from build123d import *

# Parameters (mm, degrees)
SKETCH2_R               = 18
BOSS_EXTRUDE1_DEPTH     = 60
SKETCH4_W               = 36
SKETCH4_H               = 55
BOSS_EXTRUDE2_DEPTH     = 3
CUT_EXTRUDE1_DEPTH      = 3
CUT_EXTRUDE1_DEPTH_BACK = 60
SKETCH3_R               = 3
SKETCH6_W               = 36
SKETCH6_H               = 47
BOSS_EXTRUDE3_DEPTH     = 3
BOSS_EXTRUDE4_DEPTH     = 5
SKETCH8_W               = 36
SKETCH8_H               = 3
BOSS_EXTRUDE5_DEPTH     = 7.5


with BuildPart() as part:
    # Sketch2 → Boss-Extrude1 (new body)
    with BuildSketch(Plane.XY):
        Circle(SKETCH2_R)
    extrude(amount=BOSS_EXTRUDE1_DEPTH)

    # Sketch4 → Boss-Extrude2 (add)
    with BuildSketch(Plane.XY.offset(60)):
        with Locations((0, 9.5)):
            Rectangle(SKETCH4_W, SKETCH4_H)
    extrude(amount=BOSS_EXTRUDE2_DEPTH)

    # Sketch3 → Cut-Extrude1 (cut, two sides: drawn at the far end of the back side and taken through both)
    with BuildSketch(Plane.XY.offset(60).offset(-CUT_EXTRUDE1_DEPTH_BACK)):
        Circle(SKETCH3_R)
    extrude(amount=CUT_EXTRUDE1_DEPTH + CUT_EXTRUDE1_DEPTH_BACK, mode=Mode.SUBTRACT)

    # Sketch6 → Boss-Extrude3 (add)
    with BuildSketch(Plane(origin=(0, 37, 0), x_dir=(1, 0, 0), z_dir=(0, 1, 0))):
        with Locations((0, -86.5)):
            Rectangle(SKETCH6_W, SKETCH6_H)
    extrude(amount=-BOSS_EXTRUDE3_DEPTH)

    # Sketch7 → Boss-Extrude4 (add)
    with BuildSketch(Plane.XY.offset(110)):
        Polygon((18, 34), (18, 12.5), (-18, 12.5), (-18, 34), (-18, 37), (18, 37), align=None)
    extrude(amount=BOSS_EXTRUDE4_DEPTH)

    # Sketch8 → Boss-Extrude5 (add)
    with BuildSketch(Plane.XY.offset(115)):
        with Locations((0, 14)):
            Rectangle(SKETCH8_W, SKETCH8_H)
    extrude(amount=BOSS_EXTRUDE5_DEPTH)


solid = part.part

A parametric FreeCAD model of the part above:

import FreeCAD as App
import Part
import Sketcher


def add_polygon(sketch, points):
    """Adds a closed chain of lines whose ends are joined by coincident constraints."""
    first, n = sketch.GeometryCount, len(points)
    for a, b in zip(points, points[1:] + points[:1]):
        sketch.addGeometry(Part.LineSegment(App.Vector(*a, 0), App.Vector(*b, 0)), False)
    for i in range(n):
        sketch.addConstraint(Sketcher.Constraint("Coincident", first + i, 2, first + (i + 1) % n, 1))

doc = App.newDocument("Part")
params = doc.addObject("Spreadsheet::Sheet", "Params")
for row, (alias, value) in enumerate([
    ("sketch1_diameter", "36 mm"),
    ("pad1_length", "60 mm"),
    ("sketch2_width", "36 mm"),
    ("sketch2_height", "55 mm"),
    ("pad2_length", "3 mm"),
    ("sketch3_diameter", "6 mm"),
    ("sketch4_width", "36 mm"),
    ("sketch4_height", "47 mm"),
    ("pad3_length", "3 mm"),
    ("sketch5_width", "36 mm"),
    ("sketch5_height", "24.5 mm"),
    ("pad4_length", "5 mm"),
    ("sketch6_width", "36 mm"),
    ("sketch6_height", "3 mm"),
    ("pad5_length", "7.5 mm"),
], start=1):
    params.set(f"A{row}", alias)
    params.set(f"B{row}", "=" + value)
    params.setAlias(f"B{row}", alias)

body = doc.addObject("PartDesign::Body", "Body")

# Sketch on XY plane
sketch1 = body.newObject("Sketcher::SketchObject", "Sketch")
sketch1.AttachmentSupport = (doc.getObject("XY_Plane"), [""])
sketch1.MapMode = "FlatFace"
sketch1.addGeometry(Part.Circle(App.Vector(0, 0, 0), App.Vector(0, 0, 1), 18), False)
sketch1.addConstraint(Sketcher.Constraint("Coincident", 0, 3, -1, 1))
sketch1.addConstraint(Sketcher.Constraint("Diameter", 0, 36.0))
sketch1.setExpression("Constraints[1]", "Params.sketch1_diameter")
pad1 = body.newObject("PartDesign::Pad", "Pad")
pad1.Profile = sketch1
pad1.setExpression("Length", "Params.pad1_length")

# Sketch on XY plane
sketch2 = body.newObject("Sketcher::SketchObject", "Sketch001")
sketch2.AttachmentSupport = (doc.getObject("XY_Plane"), [""])
sketch2.MapMode = "FlatFace"
sketch2.AttachmentOffset = App.Placement(App.Vector(0, 0, 60), App.Rotation())
add_polygon(sketch2, [(-18, 37), (-18, -18), (18, -18), (18, 37)])  # lines 0-3
sketch2.addConstraint(Sketcher.Constraint("Vertical", 0))
sketch2.addConstraint(Sketcher.Constraint("Horizontal", 1))
sketch2.addConstraint(Sketcher.Constraint("Vertical", 2))
sketch2.addConstraint(Sketcher.Constraint("Horizontal", 3))
sketch2.addConstraint(Sketcher.Constraint("DistanceX", 1, 1, 1, 2, 36.0))
sketch2.addConstraint(Sketcher.Constraint("DistanceY", 0, 2, 0, 1, 55.0))
sketch2.addConstraint(Sketcher.Constraint("DistanceX", 0, 2, -1, 1, 18.0))
sketch2.addConstraint(Sketcher.Constraint("DistanceY", 0, 2, -1, 1, 18.0))
sketch2.setExpression("Constraints[8]", "Params.sketch2_width")
sketch2.setExpression("Constraints[9]", "Params.sketch2_height")
pad2 = body.newObject("PartDesign::Pad", "Pad001")
pad2.Profile = sketch2
pad2.setExpression("Length", "Params.pad2_length")

# Sketch on XY plane
sketch3 = body.newObject("Sketcher::SketchObject", "Sketch002")
sketch3.AttachmentSupport = (doc.getObject("XY_Plane"), [""])
sketch3.MapMode = "FlatFace"
sketch3.AttachmentOffset = App.Placement(App.Vector(0, 0, 60), App.Rotation())
sketch3.addGeometry(Part.Circle(App.Vector(0, 0, 0), App.Vector(0, 0, 1), 3), False)
sketch3.addConstraint(Sketcher.Constraint("Coincident", 0, 3, -1, 1))
sketch3.addConstraint(Sketcher.Constraint("Diameter", 0, 6.0))
sketch3.setExpression("Constraints[1]", "Params.sketch3_diameter")
pocket1 = body.newObject("PartDesign::Pocket", "Pocket")
pocket1.Profile = sketch3
pocket1.Type = "ThroughAll"
pocket1.Midplane = True

# Sketch on XZ plane
sketch4 = body.newObject("Sketcher::SketchObject", "Sketch003")
sketch4.AttachmentSupport = (doc.getObject("XZ_Plane"), [""])
sketch4.MapMode = "FlatFace"
sketch4.AttachmentOffset = App.Placement(App.Vector(0, 0, -37), App.Rotation())
add_polygon(sketch4, [(-18, 63), (-18, 110), (18, 110), (18, 63)])  # lines 0-3
sketch4.addConstraint(Sketcher.Constraint("Vertical", 0))
sketch4.addConstraint(Sketcher.Constraint("Horizontal", 1))
sketch4.addConstraint(Sketcher.Constraint("Vertical", 2))
sketch4.addConstraint(Sketcher.Constraint("Horizontal", 3))
sketch4.addConstraint(Sketcher.Constraint("DistanceX", 1, 1, 1, 2, 36.0))
sketch4.addConstraint(Sketcher.Constraint("DistanceY", 0, 1, 0, 2, 47.0))
sketch4.addConstraint(Sketcher.Constraint("DistanceX", 0, 2, -1, 1, 18.0))
sketch4.addConstraint(Sketcher.Constraint("DistanceY", -1, 1, 0, 2, 110.0))
sketch4.setExpression("Constraints[8]", "Params.sketch4_width")
sketch4.setExpression("Constraints[9]", "Params.sketch4_height")
pad3 = body.newObject("PartDesign::Pad", "Pad002")
pad3.Profile = sketch4
pad3.setExpression("Length", "Params.pad3_length")

# Sketch on XY plane
sketch5 = body.newObject("Sketcher::SketchObject", "Sketch004")
sketch5.AttachmentSupport = (doc.getObject("XY_Plane"), [""])
sketch5.MapMode = "FlatFace"
sketch5.AttachmentOffset = App.Placement(App.Vector(0, 0, 110), App.Rotation())
add_polygon(sketch5, [(18, 12), (18, 37), (-18, 37), (-18, 12)])  # lines 0-3
sketch5.addConstraint(Sketcher.Constraint("Vertical", 0))
sketch5.addConstraint(Sketcher.Constraint("Horizontal", 1))
sketch5.addConstraint(Sketcher.Constraint("Vertical", 2))
sketch5.addConstraint(Sketcher.Constraint("Horizontal", 3))
sketch5.addConstraint(Sketcher.Constraint("DistanceX", 1, 2, 1, 1, 36.0))
sketch5.addConstraint(Sketcher.Constraint("DistanceY", 0, 1, 0, 2, 24.5))
sketch5.addConstraint(Sketcher.Constraint("DistanceX", -1, 1, 0, 2, 18.0))
sketch5.addConstraint(Sketcher.Constraint("DistanceY", -1, 1, 0, 2, 37.0))
sketch5.setExpression("Constraints[8]", "Params.sketch5_width")
sketch5.setExpression("Constraints[9]", "Params.sketch5_height")
pad4 = body.newObject("PartDesign::Pad", "Pad003")
pad4.Profile = sketch5
pad4.setExpression("Length", "Params.pad4_length")

# Sketch on XY plane
sketch6 = body.newObject("Sketcher::SketchObject", "Sketch005")
sketch6.AttachmentSupport = (doc.getObject("XY_Plane"), [""])
sketch6.MapMode = "FlatFace"
sketch6.AttachmentOffset = App.Placement(App.Vector(0, 0, 115), App.Rotation())
add_polygon(sketch6, [(-18, 15.5), (-18, 12.5), (18, 12.5), (18, 15.5)])  # lines 0-3
sketch6.addConstraint(Sketcher.Constraint("Vertical", 0))
sketch6.addConstraint(Sketcher.Constraint("Horizontal", 1))
sketch6.addConstraint(Sketcher.Constraint("Vertical", 2))
sketch6.addConstraint(Sketcher.Constraint("Horizontal", 3))
sketch6.addConstraint(Sketcher.Constraint("DistanceX", 1, 1, 1, 2, 36.0))
sketch6.addConstraint(Sketcher.Constraint("DistanceY", 0, 2, 0, 1, 3.0))
sketch6.addConstraint(Sketcher.Constraint("DistanceX", 0, 2, -1, 1, 18.0))
sketch6.addConstraint(Sketcher.Constraint("DistanceY", -1, 1, 0, 2, 12.5))
sketch6.setExpression("Constraints[8]", "Params.sketch6_width")
sketch6.setExpression("Constraints[9]", "Params.sketch6_height")
pad5 = body.newObject("PartDesign::Pad", "Pad004")
pad5.Profile = sketch6
pad5.setExpression("Length", "Params.pad5_length")

doc.recompute()
